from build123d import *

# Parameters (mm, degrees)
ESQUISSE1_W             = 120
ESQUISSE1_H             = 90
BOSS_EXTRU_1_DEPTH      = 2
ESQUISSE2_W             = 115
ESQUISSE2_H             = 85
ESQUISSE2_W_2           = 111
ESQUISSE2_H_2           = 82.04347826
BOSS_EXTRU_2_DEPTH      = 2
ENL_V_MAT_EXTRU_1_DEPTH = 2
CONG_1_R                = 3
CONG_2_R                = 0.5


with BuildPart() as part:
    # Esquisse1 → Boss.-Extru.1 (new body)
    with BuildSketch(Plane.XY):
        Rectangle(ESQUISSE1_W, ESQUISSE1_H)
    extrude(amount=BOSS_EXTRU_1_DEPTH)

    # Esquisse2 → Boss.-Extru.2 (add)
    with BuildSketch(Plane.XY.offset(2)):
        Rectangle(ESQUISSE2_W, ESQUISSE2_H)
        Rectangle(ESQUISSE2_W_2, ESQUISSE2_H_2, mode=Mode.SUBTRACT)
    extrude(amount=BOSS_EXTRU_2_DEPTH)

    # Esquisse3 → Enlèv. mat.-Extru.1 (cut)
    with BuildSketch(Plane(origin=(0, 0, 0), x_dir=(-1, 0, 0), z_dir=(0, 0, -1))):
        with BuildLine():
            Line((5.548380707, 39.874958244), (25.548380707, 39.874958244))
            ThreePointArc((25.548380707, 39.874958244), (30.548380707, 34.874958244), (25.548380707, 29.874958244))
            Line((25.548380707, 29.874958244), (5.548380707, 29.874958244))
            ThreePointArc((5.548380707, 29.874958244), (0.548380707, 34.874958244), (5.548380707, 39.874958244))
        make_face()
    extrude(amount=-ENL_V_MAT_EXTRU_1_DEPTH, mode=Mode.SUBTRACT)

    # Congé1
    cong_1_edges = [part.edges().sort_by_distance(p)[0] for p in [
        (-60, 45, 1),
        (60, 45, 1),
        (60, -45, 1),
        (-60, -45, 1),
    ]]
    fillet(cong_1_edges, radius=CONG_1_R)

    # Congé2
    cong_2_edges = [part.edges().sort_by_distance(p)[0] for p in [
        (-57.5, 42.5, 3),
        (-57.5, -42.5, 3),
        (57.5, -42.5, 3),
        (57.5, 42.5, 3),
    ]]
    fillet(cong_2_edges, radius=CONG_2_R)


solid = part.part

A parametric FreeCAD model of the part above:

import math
import FreeCAD as App
import Part
import Sketcher

V = App.Vector
Q = App.Units.Quantity


def edges_at(feature, points):
    """Names of the edges that pass closest to the given points."""
    edges = feature.Shape.Edges
    near = lambda p: min(range(len(edges)), key=lambda i: edges[i].distToShape(Part.Vertex(*p))[0])
    return sorted({f"Edge{near(p) + 1}" for p in points})


def add_polygon(sketch, points):
    """Adds a closed chain of lines whose ends are joined by coincident constraints."""
    first, n = sketch.GeometryCount, len(points)
    for a, b in zip(points, points[1:] + points[:1]):
        sketch.addGeometry(Part.LineSegment(App.Vector(*a, 0), App.Vector(*b, 0)), False)
    for i in range(n):
        sketch.addConstraint(Sketcher.Constraint("Coincident", first + i, 2, first + (i + 1) % n, 1))

doc = App.newDocument("Part")
params = doc.addObject("Spreadsheet::Sheet", "Params")
for row, (alias, value) in enumerate([
    ("sketch1_width", "120 mm"),
    ("sketch1_height", "90 mm"),
    ("pad1_length", "2 mm"),
    ("sketch2_width", "115 mm"),
    ("sketch2_width2", "111 mm"),
    ("sketch2_height", "85 mm"),
    ("pad2_length", "2 mm"),
    ("sketch3_radius", "5 mm"),
    ("sketch3_width", "20 mm"),
    ("pocket1_length", "2 mm"),
    ("fillet_radius", "3 mm"),
    ("fillet2_radius", "0.5 mm"),
], start=1):
    params.set(f"A{row}", alias)
    params.set(f"B{row}", "=" + value)
    params.setAlias(f"B{row}", alias)

body = doc.addObject("PartDesign::Body", "Body")

# Sketch on XY plane
sketch1 = body.newObject("Sketcher::SketchObject", "Sketch")
sketch1.AttachmentSupport = (doc.getObject("XY_Plane"), [""])
sketch1.MapMode = "FlatFace"
add_polygon(sketch1, [(-60, 45), (-60, -45), (60, -45), (60, 45)])  # lines 0-3
sketch1.addConstraint(Sketcher.Constraint("Vertical", 0))
sketch1.addConstraint(Sketcher.Constraint("Horizontal", 1))
sketch1.addConstraint(Sketcher.Constraint("Vertical", 2))
sketch1.addConstraint(Sketcher.Constraint("Horizontal", 3))
sketch1.addConstraint(Sketcher.Constraint("Symmetric", 0, 2, 2, 2, -1, 1))
sketch1.addConstraint(Sketcher.Constraint("DistanceX", 1, 1, 1, 2, Q("120 mm")))
sketch1.addConstraint(Sketcher.Constraint("DistanceY", 0, 2, 0, 1, Q("90 mm")))
sketch1.setExpression("Constraints[9]", "Params.sketch1_width")
sketch1.setExpression("Constraints[10]", "Params.sketch1_height")
pad1 = body.newObject("PartDesign::Pad", "Pad")
pad1.Profile = sketch1
pad1.setExpression("Length", "Params.pad1_length")

# Sketch on XY plane
sketch2 = body.newObject("Sketcher::SketchObject", "Sketch001")
sketch2.AttachmentSupport = (doc.getObject("XY_Plane"), [""])
sketch2.MapMode = "FlatFace"
sketch2.AttachmentOffset = App.Placement(V(0, 0, 2), App.Rotation())
add_polygon(sketch2, [(-58, 42), (-58, -42), (58, -42), (58, 42)])  # lines 0-3
add_polygon(sketch2, [(56, -41), (-56, -41), (-56, 41), (56, 41)])  # lines 4-7
sketch2.addConstraint(Sketcher.Constraint("Vertical", 0))
sketch2.addConstraint(Sketcher.Constraint("Horizontal", 1))
sketch2.addConstraint(Sketcher.Constraint("Vertical", 2))
sketch2.addConstraint(Sketcher.Constraint("Horizontal", 3))
sketch2.addConstraint(Sketcher.Constraint("Horizontal", 4))
sketch2.addConstraint(Sketcher.Constraint("Vertical", 5))
sketch2.addConstraint(Sketcher.Constraint("Horizontal", 6))
sketch2.addConstraint(Sketcher.Constraint("Vertical", 7))
sketch2.addConstraint(Sketcher.Constraint("Symmetric", 0, 2, 2, 2, -1, 1))
sketch2.addConstraint(Sketcher.Constraint("Symmetric", 4, 2, 6, 2, -1, 1))
sketch2.addConstraint(Sketcher.Constraint("DistanceX", 1, 1, 1, 2, Q("115 mm")))
sketch2.addConstraint(Sketcher.Constraint("DistanceX", 4, 2, 4, 1, Q("111 mm")))
sketch2.addConstraint(Sketcher.Constraint("DistanceY", 0, 2, 0, 1, Q("85 mm")))
sketch2.addConstraint(Sketcher.Constraint("DistanceY", 5, 1, 5, 2, Q("82.043478 mm")))
sketch2.setExpression("Constraints[18]", "Params.sketch2_width")
sketch2.setExpression("Constraints[19]", "Params.sketch2_width2")
sketch2.setExpression("Constraints[20]", "Params.sketch2_height")
pad2 = body.newObject("PartDesign::Pad", "Pad001")
pad2.Profile = sketch2
pad2.setExpression("Length", "Params.pad2_length")

# Sketch on XY plane
sketch3 = body.newObject("Sketcher::SketchObject", "Sketch002")
sketch3.AttachmentSupport = (doc.getObject("XY_Plane"), [""])
sketch3.MapMode = "FlatFace"
sketch3.addGeometry(Part.LineSegment(V(-26, 40, 0), V(-6, 40, 0)), False)
sketch3.addGeometry(Part.ArcOfCircle(Part.Circle(V(-6, 35, 0), V(0, 0, 1), 5), math.radians(-90), math.radians(90)), False)
sketch3.addGeometry(Part.LineSegment(V(-6, 30, 0), V(-26, 30, 0)), False)
sketch3.addGeometry(Part.ArcOfCircle(Part.Circle(V(-26, 35, 0), V(0, 0, 1), 5), math.radians(90), math.radians(270)), False)
sketch3.addConstraint(Sketcher.Constraint("Tangent", 0, 2, 1, 2))
sketch3.addConstraint(Sketcher.Constraint("Tangent", 1, 1, 2, 1))
sketch3.addConstraint(Sketcher.Constraint("Tangent", 2, 2, 3, 2))
sketch3.addConstraint(Sketcher.Constraint("Tangent", 3, 1, 0, 1))
sketch3.addConstraint(Sketcher.Constraint("Horizontal", 0))
sketch3.addConstraint(Sketcher.Constraint("Horizontal", 2))
sketch3.addConstraint(Sketcher.Constraint("Radius", 1, Q("5 mm")))
sketch3.addConstraint(Sketcher.Constraint("DistanceX", 0, 1, 0, 2, Q("20 mm")))
sketch3.addConstraint(Sketcher.Constraint("DistanceX", 1, 3, -1, 1, Q("5.548381 mm")))
sketch3.addConstraint(Sketcher.Constraint("DistanceY", -1, 1, 1, 3, Q("34.874958 mm")))
sketch3.setExpression("Constraints[6]", "Params.sketch3_radius")
sketch3.setExpression("Constraints[7]", "Params.sketch3_width")
pocket1 = body.newObject("PartDesign::Pocket", "Pocket")
pocket1.Profile = sketch3
pocket1.setExpression("Length", "Params.pocket1_length")
pocket1.Reversed = True
doc.recompute()

fillet = body.newObject("PartDesign::Fillet", "Fillet")
fillet.Base = (pocket1, edges_at(pocket1, [
    (-60, 45, 1),
    (60, 45, 1),
    (60, -45, 1),
    (-60, -45, 1),
]))
fillet.setExpression("Radius", "Params.fillet_radius")
doc.recompute()

fillet2 = body.newObject("PartDesign::Fillet", "Fillet001")
fillet2.Base = (fillet, edges_at(fillet, [
    (-57.5, 42.5, 3),
    (-57.5, -42.5, 3),
    (57.5, -42.5, 3),
    (57.5, 42.5, 3),
]))
fillet2.setExpression("Radius", "Params.fillet2_radius")

doc.recompute()
